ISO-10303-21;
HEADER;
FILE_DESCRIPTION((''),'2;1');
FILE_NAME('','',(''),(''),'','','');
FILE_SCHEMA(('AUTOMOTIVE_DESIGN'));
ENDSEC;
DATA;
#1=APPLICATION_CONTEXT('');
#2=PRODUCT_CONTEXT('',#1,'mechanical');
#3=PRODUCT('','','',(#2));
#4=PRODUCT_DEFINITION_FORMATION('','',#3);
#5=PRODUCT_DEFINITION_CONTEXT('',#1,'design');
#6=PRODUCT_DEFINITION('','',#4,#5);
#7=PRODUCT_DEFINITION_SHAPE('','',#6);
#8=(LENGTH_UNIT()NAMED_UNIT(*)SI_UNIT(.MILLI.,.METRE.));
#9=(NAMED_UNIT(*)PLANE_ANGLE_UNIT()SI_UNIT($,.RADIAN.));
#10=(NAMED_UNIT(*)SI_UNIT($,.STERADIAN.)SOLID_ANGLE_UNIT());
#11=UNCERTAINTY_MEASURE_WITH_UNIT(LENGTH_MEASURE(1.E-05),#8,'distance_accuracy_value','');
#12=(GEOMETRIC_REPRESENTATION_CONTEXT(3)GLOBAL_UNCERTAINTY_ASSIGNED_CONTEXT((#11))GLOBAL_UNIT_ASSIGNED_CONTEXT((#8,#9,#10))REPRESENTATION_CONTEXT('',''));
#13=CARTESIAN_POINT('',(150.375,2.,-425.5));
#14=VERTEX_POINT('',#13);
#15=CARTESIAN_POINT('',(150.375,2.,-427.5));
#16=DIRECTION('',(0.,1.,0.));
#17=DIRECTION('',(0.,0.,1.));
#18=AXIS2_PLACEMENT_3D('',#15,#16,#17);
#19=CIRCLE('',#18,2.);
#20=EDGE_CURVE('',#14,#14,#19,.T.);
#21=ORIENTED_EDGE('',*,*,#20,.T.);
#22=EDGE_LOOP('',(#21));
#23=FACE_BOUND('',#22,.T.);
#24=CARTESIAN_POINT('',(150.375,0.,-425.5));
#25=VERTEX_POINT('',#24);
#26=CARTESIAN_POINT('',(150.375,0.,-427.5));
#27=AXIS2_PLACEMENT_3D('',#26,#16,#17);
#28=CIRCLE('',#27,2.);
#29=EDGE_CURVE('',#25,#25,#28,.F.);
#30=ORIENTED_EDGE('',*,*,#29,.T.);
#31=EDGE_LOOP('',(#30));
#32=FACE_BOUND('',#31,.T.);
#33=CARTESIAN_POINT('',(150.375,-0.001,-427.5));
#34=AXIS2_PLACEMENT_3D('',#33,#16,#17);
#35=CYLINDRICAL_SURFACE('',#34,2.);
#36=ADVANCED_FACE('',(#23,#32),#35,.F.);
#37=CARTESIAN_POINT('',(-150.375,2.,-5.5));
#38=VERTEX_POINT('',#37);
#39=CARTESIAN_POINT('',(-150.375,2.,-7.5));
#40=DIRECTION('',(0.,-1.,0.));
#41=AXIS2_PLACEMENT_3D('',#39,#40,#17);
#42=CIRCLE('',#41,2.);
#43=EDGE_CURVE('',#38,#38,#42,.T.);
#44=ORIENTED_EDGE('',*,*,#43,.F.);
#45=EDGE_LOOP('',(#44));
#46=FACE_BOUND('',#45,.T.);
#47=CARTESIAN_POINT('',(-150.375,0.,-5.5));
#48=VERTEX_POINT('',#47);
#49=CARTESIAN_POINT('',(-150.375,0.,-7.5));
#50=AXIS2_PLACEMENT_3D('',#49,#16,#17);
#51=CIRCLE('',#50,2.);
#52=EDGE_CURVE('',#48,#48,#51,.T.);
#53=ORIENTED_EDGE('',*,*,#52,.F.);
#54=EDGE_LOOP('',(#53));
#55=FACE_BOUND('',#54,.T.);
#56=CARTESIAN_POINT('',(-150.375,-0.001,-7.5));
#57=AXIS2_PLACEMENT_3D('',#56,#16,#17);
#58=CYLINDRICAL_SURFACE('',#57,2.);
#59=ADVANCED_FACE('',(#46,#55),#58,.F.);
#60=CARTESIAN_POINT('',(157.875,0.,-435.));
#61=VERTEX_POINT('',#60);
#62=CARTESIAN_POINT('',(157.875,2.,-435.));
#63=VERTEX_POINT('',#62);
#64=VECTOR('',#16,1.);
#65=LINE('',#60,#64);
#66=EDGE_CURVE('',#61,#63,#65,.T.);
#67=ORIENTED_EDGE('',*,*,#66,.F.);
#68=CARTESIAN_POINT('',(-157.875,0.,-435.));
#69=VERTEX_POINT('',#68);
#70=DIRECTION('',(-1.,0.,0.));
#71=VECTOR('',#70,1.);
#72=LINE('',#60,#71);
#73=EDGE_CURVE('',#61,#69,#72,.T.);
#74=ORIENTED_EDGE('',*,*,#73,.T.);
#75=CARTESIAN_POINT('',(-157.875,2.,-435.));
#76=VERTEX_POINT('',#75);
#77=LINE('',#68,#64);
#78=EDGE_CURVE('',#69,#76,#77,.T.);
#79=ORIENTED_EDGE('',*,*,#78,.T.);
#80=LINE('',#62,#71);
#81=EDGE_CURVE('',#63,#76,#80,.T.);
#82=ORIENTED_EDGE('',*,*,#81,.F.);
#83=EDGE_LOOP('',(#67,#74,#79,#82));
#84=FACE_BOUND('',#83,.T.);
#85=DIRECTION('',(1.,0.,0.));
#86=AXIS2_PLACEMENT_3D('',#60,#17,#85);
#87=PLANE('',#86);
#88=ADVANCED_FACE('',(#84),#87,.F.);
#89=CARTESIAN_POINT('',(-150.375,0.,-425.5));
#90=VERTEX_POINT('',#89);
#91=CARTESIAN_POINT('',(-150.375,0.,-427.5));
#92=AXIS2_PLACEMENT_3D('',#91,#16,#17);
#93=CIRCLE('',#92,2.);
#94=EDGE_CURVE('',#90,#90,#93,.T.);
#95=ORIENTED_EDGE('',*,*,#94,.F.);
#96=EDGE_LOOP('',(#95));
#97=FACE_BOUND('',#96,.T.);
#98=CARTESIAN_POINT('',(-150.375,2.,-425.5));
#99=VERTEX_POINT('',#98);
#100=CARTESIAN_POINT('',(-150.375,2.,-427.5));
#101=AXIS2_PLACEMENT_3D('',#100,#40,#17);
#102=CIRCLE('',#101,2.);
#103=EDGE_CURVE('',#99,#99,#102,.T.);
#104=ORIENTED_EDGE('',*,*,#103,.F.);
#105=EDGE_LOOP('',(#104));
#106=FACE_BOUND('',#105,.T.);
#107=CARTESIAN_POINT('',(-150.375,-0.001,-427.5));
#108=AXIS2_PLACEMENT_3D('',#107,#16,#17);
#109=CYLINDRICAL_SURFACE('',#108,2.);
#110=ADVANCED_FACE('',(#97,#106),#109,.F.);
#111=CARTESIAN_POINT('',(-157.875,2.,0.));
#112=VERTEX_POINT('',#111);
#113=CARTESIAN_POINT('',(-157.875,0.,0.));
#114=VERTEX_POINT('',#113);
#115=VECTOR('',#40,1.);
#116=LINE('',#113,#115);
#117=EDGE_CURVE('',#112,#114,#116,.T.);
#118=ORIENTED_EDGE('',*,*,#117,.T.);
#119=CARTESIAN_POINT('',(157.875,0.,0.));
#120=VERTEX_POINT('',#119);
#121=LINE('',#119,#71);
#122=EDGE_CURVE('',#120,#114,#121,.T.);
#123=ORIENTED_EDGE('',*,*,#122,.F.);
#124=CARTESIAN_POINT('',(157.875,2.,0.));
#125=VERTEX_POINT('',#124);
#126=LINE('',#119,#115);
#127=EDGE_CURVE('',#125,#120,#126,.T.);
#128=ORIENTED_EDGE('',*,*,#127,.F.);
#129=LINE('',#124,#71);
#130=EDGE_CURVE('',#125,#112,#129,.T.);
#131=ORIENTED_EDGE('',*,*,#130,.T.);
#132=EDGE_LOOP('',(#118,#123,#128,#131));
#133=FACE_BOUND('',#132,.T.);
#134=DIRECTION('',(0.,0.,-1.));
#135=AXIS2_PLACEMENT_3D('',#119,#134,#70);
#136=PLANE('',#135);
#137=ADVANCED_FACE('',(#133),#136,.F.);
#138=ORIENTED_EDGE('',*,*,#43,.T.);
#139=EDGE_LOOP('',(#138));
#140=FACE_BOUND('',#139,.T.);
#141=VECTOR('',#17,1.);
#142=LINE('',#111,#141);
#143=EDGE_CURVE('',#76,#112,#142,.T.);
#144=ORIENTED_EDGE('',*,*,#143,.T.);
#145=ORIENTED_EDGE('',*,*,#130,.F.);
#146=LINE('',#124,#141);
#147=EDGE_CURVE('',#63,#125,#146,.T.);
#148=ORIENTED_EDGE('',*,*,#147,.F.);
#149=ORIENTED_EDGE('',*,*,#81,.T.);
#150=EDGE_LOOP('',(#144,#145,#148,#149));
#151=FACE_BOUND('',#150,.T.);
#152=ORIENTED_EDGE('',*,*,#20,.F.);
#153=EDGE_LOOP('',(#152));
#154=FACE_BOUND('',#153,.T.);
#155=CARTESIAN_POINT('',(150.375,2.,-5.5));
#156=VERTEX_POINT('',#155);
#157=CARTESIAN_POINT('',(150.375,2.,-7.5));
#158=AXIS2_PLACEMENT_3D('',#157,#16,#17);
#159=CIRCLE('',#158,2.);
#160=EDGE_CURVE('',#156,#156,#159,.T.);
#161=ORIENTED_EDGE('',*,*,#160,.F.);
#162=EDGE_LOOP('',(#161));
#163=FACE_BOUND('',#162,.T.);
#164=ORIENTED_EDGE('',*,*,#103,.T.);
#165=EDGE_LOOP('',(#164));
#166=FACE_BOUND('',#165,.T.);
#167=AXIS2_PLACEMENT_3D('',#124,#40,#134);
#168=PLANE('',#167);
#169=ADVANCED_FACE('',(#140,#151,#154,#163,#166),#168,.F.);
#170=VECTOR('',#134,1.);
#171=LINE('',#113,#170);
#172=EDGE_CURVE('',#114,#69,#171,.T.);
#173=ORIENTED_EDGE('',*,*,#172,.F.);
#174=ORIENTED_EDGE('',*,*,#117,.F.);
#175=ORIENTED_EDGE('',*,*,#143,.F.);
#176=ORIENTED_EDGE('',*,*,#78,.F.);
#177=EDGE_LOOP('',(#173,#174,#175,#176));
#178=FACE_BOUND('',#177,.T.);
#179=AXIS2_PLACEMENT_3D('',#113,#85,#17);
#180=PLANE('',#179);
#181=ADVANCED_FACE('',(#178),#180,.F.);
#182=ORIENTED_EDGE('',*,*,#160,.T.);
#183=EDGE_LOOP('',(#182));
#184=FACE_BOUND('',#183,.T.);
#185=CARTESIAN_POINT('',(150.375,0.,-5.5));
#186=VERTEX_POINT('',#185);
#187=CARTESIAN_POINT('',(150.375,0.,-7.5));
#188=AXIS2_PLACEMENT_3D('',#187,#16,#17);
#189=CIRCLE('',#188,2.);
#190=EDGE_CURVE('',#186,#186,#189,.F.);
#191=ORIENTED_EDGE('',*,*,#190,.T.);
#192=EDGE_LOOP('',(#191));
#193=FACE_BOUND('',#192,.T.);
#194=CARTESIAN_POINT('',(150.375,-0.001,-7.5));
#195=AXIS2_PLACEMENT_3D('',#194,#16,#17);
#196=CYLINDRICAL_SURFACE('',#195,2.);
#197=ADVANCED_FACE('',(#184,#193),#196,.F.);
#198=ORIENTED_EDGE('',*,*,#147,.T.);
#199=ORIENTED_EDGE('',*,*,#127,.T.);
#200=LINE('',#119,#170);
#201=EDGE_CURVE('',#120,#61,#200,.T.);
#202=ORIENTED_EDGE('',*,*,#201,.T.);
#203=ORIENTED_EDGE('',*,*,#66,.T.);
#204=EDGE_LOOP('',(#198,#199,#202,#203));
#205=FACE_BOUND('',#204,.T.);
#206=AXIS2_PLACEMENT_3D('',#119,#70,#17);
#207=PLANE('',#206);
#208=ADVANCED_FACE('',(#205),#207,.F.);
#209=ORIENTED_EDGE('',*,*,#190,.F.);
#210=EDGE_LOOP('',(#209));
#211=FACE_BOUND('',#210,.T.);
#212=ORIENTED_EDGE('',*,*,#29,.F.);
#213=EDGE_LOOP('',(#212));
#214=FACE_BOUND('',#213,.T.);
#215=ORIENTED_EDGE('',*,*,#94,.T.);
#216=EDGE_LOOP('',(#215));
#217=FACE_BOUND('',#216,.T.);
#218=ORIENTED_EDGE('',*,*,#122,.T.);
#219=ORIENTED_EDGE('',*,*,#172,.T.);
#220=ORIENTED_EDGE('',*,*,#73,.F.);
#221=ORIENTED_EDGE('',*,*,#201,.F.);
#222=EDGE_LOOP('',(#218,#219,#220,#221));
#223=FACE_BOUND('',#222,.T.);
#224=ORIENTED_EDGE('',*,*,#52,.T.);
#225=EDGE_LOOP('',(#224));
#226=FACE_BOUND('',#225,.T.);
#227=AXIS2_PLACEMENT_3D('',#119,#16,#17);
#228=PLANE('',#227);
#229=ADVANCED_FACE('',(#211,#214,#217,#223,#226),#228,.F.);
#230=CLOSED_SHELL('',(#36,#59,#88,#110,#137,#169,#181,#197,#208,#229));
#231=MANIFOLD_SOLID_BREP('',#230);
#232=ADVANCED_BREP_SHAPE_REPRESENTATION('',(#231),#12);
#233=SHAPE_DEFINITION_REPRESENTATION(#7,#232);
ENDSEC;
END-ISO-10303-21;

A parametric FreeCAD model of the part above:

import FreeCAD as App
import Part
import Sketcher
from FreeCAD import Vector
Q = App.Units.Quantity


def add_polygon(sketch, points):
    """Adds a closed chain of lines whose ends are joined by coincident constraints."""
    first, n = sketch.GeometryCount, len(points)
    for a, b in zip(points, points[1:] + points[:1]):
        sketch.addGeometry(Part.LineSegment(App.Vector(*a, 0), App.Vector(*b, 0)), False)
    for i in range(n):
        sketch.addConstraint(Sketcher.Constraint("Coincident", first + i, 2, first + (i + 1) % n, 1))

doc = App.newDocument("Part")
params = doc.addObject("Spreadsheet::Sheet", "Params")
for row, (alias, value) in enumerate([
    ("sketch1_width", "2 mm"),
    ("sketch1_height", "435 mm"),
    ("pad1_length", "157.875 mm"),
    ("sketch2_diameter", "4 mm"),
    ("pocket1_length", "2 mm"),
], start=1):
    params.set(f"A{row}", alias)
    params.set(f"B{row}", "=" + value)
    params.setAlias(f"B{row}", alias)

body = doc.addObject("PartDesign::Body", "Body")

# Sketch on YZ plane
sketch1 = body.newObject("Sketcher::SketchObject", "Sketch")
sketch1.AttachmentSupport = (doc.getObject("YZ_Plane"), [""])
sketch1.MapMode = "FlatFace"
add_polygon(sketch1, [(2, 0), (0, 0), (0, -435), (2, -435)])  # lines 0-3
sketch1.addConstraint(Sketcher.Constraint("Horizontal", 0))
sketch1.addConstraint(Sketcher.Constraint("Vertical", 1))
sketch1.addConstraint(Sketcher.Constraint("Horizontal", 2))
sketch1.addConstraint(Sketcher.Constraint("Vertical", 3))
sketch1.addConstraint(Sketcher.Constraint("Coincident", 0, 2, -1, 1))
sketch1.addConstraint(Sketcher.Constraint("DistanceX", 0, 2, 0, 1, Q("2 mm")))
sketch1.addConstraint(Sketcher.Constraint("DistanceY", 1, 2, 1, 1, Q("435 mm")))
sketch1.setExpression("Constraints[9]", "Params.sketch1_width")
sketch1.setExpression("Constraints[10]", "Params.sketch1_height")
pad1 = body.newObject("PartDesign::Pad", "Pad")
pad1.Profile = sketch1
pad1.setExpression("Length", "Params.pad1_length")

# Sketch on XZ plane
sketch2 = body.newObject("Sketcher::SketchObject", "Sketch001")
sketch2.AttachmentSupport = (doc.getObject("XZ_Plane"), [""])
sketch2.MapMode = "FlatFace"
sketch2.AttachmentOffset = App.Placement(Vector(0, 0, -2), App.Rotation())
sketch2.addGeometry(Part.Circle(Vector(150.4, -427.5, 0), Vector(0, 0, 1), 2), False)
sketch2.addGeometry(Part.Circle(Vector(150.4, -7.5, 0), Vector(0, 0, 1), 2), False)
sketch2.addConstraint(Sketcher.Constraint("Equal", 0, 1))
sketch2.addConstraint(Sketcher.Constraint("Vertical", 0, 3, 1, 3))
sketch2.addConstraint(Sketcher.Constraint("Diameter", 0, Q("4 mm")))
sketch2.addConstraint(Sketcher.Constraint("DistanceY", 0, 3, 1, 3, Q("420 mm")))
sketch2.addConstraint(Sketcher.Constraint("DistanceY", 0, 3, -1, 1, Q("427.5 mm")))
sketch2.addConstraint(Sketcher.Constraint("DistanceX", -1, 1, 0, 3, Q("150.375 mm")))
sketch2.setExpression("Constraints[2]", "Params.sketch2_diameter")
pocket1 = body.newObject("PartDesign::Pocket", "Pocket")
pocket1.Profile = sketch2
pocket1.setExpression("Length", "Params.pocket1_length")
pocket1.Reversed = True
doc.recompute()

mirrored = body.newObject("PartDesign::Mirrored", "Mirrored")
mirrored.Originals = [pad1, pocket1]
mirrored.MirrorPlane = (doc.getObject("YZ_Plane"), [""])
body.Tip = mirrored

doc.recompute()
